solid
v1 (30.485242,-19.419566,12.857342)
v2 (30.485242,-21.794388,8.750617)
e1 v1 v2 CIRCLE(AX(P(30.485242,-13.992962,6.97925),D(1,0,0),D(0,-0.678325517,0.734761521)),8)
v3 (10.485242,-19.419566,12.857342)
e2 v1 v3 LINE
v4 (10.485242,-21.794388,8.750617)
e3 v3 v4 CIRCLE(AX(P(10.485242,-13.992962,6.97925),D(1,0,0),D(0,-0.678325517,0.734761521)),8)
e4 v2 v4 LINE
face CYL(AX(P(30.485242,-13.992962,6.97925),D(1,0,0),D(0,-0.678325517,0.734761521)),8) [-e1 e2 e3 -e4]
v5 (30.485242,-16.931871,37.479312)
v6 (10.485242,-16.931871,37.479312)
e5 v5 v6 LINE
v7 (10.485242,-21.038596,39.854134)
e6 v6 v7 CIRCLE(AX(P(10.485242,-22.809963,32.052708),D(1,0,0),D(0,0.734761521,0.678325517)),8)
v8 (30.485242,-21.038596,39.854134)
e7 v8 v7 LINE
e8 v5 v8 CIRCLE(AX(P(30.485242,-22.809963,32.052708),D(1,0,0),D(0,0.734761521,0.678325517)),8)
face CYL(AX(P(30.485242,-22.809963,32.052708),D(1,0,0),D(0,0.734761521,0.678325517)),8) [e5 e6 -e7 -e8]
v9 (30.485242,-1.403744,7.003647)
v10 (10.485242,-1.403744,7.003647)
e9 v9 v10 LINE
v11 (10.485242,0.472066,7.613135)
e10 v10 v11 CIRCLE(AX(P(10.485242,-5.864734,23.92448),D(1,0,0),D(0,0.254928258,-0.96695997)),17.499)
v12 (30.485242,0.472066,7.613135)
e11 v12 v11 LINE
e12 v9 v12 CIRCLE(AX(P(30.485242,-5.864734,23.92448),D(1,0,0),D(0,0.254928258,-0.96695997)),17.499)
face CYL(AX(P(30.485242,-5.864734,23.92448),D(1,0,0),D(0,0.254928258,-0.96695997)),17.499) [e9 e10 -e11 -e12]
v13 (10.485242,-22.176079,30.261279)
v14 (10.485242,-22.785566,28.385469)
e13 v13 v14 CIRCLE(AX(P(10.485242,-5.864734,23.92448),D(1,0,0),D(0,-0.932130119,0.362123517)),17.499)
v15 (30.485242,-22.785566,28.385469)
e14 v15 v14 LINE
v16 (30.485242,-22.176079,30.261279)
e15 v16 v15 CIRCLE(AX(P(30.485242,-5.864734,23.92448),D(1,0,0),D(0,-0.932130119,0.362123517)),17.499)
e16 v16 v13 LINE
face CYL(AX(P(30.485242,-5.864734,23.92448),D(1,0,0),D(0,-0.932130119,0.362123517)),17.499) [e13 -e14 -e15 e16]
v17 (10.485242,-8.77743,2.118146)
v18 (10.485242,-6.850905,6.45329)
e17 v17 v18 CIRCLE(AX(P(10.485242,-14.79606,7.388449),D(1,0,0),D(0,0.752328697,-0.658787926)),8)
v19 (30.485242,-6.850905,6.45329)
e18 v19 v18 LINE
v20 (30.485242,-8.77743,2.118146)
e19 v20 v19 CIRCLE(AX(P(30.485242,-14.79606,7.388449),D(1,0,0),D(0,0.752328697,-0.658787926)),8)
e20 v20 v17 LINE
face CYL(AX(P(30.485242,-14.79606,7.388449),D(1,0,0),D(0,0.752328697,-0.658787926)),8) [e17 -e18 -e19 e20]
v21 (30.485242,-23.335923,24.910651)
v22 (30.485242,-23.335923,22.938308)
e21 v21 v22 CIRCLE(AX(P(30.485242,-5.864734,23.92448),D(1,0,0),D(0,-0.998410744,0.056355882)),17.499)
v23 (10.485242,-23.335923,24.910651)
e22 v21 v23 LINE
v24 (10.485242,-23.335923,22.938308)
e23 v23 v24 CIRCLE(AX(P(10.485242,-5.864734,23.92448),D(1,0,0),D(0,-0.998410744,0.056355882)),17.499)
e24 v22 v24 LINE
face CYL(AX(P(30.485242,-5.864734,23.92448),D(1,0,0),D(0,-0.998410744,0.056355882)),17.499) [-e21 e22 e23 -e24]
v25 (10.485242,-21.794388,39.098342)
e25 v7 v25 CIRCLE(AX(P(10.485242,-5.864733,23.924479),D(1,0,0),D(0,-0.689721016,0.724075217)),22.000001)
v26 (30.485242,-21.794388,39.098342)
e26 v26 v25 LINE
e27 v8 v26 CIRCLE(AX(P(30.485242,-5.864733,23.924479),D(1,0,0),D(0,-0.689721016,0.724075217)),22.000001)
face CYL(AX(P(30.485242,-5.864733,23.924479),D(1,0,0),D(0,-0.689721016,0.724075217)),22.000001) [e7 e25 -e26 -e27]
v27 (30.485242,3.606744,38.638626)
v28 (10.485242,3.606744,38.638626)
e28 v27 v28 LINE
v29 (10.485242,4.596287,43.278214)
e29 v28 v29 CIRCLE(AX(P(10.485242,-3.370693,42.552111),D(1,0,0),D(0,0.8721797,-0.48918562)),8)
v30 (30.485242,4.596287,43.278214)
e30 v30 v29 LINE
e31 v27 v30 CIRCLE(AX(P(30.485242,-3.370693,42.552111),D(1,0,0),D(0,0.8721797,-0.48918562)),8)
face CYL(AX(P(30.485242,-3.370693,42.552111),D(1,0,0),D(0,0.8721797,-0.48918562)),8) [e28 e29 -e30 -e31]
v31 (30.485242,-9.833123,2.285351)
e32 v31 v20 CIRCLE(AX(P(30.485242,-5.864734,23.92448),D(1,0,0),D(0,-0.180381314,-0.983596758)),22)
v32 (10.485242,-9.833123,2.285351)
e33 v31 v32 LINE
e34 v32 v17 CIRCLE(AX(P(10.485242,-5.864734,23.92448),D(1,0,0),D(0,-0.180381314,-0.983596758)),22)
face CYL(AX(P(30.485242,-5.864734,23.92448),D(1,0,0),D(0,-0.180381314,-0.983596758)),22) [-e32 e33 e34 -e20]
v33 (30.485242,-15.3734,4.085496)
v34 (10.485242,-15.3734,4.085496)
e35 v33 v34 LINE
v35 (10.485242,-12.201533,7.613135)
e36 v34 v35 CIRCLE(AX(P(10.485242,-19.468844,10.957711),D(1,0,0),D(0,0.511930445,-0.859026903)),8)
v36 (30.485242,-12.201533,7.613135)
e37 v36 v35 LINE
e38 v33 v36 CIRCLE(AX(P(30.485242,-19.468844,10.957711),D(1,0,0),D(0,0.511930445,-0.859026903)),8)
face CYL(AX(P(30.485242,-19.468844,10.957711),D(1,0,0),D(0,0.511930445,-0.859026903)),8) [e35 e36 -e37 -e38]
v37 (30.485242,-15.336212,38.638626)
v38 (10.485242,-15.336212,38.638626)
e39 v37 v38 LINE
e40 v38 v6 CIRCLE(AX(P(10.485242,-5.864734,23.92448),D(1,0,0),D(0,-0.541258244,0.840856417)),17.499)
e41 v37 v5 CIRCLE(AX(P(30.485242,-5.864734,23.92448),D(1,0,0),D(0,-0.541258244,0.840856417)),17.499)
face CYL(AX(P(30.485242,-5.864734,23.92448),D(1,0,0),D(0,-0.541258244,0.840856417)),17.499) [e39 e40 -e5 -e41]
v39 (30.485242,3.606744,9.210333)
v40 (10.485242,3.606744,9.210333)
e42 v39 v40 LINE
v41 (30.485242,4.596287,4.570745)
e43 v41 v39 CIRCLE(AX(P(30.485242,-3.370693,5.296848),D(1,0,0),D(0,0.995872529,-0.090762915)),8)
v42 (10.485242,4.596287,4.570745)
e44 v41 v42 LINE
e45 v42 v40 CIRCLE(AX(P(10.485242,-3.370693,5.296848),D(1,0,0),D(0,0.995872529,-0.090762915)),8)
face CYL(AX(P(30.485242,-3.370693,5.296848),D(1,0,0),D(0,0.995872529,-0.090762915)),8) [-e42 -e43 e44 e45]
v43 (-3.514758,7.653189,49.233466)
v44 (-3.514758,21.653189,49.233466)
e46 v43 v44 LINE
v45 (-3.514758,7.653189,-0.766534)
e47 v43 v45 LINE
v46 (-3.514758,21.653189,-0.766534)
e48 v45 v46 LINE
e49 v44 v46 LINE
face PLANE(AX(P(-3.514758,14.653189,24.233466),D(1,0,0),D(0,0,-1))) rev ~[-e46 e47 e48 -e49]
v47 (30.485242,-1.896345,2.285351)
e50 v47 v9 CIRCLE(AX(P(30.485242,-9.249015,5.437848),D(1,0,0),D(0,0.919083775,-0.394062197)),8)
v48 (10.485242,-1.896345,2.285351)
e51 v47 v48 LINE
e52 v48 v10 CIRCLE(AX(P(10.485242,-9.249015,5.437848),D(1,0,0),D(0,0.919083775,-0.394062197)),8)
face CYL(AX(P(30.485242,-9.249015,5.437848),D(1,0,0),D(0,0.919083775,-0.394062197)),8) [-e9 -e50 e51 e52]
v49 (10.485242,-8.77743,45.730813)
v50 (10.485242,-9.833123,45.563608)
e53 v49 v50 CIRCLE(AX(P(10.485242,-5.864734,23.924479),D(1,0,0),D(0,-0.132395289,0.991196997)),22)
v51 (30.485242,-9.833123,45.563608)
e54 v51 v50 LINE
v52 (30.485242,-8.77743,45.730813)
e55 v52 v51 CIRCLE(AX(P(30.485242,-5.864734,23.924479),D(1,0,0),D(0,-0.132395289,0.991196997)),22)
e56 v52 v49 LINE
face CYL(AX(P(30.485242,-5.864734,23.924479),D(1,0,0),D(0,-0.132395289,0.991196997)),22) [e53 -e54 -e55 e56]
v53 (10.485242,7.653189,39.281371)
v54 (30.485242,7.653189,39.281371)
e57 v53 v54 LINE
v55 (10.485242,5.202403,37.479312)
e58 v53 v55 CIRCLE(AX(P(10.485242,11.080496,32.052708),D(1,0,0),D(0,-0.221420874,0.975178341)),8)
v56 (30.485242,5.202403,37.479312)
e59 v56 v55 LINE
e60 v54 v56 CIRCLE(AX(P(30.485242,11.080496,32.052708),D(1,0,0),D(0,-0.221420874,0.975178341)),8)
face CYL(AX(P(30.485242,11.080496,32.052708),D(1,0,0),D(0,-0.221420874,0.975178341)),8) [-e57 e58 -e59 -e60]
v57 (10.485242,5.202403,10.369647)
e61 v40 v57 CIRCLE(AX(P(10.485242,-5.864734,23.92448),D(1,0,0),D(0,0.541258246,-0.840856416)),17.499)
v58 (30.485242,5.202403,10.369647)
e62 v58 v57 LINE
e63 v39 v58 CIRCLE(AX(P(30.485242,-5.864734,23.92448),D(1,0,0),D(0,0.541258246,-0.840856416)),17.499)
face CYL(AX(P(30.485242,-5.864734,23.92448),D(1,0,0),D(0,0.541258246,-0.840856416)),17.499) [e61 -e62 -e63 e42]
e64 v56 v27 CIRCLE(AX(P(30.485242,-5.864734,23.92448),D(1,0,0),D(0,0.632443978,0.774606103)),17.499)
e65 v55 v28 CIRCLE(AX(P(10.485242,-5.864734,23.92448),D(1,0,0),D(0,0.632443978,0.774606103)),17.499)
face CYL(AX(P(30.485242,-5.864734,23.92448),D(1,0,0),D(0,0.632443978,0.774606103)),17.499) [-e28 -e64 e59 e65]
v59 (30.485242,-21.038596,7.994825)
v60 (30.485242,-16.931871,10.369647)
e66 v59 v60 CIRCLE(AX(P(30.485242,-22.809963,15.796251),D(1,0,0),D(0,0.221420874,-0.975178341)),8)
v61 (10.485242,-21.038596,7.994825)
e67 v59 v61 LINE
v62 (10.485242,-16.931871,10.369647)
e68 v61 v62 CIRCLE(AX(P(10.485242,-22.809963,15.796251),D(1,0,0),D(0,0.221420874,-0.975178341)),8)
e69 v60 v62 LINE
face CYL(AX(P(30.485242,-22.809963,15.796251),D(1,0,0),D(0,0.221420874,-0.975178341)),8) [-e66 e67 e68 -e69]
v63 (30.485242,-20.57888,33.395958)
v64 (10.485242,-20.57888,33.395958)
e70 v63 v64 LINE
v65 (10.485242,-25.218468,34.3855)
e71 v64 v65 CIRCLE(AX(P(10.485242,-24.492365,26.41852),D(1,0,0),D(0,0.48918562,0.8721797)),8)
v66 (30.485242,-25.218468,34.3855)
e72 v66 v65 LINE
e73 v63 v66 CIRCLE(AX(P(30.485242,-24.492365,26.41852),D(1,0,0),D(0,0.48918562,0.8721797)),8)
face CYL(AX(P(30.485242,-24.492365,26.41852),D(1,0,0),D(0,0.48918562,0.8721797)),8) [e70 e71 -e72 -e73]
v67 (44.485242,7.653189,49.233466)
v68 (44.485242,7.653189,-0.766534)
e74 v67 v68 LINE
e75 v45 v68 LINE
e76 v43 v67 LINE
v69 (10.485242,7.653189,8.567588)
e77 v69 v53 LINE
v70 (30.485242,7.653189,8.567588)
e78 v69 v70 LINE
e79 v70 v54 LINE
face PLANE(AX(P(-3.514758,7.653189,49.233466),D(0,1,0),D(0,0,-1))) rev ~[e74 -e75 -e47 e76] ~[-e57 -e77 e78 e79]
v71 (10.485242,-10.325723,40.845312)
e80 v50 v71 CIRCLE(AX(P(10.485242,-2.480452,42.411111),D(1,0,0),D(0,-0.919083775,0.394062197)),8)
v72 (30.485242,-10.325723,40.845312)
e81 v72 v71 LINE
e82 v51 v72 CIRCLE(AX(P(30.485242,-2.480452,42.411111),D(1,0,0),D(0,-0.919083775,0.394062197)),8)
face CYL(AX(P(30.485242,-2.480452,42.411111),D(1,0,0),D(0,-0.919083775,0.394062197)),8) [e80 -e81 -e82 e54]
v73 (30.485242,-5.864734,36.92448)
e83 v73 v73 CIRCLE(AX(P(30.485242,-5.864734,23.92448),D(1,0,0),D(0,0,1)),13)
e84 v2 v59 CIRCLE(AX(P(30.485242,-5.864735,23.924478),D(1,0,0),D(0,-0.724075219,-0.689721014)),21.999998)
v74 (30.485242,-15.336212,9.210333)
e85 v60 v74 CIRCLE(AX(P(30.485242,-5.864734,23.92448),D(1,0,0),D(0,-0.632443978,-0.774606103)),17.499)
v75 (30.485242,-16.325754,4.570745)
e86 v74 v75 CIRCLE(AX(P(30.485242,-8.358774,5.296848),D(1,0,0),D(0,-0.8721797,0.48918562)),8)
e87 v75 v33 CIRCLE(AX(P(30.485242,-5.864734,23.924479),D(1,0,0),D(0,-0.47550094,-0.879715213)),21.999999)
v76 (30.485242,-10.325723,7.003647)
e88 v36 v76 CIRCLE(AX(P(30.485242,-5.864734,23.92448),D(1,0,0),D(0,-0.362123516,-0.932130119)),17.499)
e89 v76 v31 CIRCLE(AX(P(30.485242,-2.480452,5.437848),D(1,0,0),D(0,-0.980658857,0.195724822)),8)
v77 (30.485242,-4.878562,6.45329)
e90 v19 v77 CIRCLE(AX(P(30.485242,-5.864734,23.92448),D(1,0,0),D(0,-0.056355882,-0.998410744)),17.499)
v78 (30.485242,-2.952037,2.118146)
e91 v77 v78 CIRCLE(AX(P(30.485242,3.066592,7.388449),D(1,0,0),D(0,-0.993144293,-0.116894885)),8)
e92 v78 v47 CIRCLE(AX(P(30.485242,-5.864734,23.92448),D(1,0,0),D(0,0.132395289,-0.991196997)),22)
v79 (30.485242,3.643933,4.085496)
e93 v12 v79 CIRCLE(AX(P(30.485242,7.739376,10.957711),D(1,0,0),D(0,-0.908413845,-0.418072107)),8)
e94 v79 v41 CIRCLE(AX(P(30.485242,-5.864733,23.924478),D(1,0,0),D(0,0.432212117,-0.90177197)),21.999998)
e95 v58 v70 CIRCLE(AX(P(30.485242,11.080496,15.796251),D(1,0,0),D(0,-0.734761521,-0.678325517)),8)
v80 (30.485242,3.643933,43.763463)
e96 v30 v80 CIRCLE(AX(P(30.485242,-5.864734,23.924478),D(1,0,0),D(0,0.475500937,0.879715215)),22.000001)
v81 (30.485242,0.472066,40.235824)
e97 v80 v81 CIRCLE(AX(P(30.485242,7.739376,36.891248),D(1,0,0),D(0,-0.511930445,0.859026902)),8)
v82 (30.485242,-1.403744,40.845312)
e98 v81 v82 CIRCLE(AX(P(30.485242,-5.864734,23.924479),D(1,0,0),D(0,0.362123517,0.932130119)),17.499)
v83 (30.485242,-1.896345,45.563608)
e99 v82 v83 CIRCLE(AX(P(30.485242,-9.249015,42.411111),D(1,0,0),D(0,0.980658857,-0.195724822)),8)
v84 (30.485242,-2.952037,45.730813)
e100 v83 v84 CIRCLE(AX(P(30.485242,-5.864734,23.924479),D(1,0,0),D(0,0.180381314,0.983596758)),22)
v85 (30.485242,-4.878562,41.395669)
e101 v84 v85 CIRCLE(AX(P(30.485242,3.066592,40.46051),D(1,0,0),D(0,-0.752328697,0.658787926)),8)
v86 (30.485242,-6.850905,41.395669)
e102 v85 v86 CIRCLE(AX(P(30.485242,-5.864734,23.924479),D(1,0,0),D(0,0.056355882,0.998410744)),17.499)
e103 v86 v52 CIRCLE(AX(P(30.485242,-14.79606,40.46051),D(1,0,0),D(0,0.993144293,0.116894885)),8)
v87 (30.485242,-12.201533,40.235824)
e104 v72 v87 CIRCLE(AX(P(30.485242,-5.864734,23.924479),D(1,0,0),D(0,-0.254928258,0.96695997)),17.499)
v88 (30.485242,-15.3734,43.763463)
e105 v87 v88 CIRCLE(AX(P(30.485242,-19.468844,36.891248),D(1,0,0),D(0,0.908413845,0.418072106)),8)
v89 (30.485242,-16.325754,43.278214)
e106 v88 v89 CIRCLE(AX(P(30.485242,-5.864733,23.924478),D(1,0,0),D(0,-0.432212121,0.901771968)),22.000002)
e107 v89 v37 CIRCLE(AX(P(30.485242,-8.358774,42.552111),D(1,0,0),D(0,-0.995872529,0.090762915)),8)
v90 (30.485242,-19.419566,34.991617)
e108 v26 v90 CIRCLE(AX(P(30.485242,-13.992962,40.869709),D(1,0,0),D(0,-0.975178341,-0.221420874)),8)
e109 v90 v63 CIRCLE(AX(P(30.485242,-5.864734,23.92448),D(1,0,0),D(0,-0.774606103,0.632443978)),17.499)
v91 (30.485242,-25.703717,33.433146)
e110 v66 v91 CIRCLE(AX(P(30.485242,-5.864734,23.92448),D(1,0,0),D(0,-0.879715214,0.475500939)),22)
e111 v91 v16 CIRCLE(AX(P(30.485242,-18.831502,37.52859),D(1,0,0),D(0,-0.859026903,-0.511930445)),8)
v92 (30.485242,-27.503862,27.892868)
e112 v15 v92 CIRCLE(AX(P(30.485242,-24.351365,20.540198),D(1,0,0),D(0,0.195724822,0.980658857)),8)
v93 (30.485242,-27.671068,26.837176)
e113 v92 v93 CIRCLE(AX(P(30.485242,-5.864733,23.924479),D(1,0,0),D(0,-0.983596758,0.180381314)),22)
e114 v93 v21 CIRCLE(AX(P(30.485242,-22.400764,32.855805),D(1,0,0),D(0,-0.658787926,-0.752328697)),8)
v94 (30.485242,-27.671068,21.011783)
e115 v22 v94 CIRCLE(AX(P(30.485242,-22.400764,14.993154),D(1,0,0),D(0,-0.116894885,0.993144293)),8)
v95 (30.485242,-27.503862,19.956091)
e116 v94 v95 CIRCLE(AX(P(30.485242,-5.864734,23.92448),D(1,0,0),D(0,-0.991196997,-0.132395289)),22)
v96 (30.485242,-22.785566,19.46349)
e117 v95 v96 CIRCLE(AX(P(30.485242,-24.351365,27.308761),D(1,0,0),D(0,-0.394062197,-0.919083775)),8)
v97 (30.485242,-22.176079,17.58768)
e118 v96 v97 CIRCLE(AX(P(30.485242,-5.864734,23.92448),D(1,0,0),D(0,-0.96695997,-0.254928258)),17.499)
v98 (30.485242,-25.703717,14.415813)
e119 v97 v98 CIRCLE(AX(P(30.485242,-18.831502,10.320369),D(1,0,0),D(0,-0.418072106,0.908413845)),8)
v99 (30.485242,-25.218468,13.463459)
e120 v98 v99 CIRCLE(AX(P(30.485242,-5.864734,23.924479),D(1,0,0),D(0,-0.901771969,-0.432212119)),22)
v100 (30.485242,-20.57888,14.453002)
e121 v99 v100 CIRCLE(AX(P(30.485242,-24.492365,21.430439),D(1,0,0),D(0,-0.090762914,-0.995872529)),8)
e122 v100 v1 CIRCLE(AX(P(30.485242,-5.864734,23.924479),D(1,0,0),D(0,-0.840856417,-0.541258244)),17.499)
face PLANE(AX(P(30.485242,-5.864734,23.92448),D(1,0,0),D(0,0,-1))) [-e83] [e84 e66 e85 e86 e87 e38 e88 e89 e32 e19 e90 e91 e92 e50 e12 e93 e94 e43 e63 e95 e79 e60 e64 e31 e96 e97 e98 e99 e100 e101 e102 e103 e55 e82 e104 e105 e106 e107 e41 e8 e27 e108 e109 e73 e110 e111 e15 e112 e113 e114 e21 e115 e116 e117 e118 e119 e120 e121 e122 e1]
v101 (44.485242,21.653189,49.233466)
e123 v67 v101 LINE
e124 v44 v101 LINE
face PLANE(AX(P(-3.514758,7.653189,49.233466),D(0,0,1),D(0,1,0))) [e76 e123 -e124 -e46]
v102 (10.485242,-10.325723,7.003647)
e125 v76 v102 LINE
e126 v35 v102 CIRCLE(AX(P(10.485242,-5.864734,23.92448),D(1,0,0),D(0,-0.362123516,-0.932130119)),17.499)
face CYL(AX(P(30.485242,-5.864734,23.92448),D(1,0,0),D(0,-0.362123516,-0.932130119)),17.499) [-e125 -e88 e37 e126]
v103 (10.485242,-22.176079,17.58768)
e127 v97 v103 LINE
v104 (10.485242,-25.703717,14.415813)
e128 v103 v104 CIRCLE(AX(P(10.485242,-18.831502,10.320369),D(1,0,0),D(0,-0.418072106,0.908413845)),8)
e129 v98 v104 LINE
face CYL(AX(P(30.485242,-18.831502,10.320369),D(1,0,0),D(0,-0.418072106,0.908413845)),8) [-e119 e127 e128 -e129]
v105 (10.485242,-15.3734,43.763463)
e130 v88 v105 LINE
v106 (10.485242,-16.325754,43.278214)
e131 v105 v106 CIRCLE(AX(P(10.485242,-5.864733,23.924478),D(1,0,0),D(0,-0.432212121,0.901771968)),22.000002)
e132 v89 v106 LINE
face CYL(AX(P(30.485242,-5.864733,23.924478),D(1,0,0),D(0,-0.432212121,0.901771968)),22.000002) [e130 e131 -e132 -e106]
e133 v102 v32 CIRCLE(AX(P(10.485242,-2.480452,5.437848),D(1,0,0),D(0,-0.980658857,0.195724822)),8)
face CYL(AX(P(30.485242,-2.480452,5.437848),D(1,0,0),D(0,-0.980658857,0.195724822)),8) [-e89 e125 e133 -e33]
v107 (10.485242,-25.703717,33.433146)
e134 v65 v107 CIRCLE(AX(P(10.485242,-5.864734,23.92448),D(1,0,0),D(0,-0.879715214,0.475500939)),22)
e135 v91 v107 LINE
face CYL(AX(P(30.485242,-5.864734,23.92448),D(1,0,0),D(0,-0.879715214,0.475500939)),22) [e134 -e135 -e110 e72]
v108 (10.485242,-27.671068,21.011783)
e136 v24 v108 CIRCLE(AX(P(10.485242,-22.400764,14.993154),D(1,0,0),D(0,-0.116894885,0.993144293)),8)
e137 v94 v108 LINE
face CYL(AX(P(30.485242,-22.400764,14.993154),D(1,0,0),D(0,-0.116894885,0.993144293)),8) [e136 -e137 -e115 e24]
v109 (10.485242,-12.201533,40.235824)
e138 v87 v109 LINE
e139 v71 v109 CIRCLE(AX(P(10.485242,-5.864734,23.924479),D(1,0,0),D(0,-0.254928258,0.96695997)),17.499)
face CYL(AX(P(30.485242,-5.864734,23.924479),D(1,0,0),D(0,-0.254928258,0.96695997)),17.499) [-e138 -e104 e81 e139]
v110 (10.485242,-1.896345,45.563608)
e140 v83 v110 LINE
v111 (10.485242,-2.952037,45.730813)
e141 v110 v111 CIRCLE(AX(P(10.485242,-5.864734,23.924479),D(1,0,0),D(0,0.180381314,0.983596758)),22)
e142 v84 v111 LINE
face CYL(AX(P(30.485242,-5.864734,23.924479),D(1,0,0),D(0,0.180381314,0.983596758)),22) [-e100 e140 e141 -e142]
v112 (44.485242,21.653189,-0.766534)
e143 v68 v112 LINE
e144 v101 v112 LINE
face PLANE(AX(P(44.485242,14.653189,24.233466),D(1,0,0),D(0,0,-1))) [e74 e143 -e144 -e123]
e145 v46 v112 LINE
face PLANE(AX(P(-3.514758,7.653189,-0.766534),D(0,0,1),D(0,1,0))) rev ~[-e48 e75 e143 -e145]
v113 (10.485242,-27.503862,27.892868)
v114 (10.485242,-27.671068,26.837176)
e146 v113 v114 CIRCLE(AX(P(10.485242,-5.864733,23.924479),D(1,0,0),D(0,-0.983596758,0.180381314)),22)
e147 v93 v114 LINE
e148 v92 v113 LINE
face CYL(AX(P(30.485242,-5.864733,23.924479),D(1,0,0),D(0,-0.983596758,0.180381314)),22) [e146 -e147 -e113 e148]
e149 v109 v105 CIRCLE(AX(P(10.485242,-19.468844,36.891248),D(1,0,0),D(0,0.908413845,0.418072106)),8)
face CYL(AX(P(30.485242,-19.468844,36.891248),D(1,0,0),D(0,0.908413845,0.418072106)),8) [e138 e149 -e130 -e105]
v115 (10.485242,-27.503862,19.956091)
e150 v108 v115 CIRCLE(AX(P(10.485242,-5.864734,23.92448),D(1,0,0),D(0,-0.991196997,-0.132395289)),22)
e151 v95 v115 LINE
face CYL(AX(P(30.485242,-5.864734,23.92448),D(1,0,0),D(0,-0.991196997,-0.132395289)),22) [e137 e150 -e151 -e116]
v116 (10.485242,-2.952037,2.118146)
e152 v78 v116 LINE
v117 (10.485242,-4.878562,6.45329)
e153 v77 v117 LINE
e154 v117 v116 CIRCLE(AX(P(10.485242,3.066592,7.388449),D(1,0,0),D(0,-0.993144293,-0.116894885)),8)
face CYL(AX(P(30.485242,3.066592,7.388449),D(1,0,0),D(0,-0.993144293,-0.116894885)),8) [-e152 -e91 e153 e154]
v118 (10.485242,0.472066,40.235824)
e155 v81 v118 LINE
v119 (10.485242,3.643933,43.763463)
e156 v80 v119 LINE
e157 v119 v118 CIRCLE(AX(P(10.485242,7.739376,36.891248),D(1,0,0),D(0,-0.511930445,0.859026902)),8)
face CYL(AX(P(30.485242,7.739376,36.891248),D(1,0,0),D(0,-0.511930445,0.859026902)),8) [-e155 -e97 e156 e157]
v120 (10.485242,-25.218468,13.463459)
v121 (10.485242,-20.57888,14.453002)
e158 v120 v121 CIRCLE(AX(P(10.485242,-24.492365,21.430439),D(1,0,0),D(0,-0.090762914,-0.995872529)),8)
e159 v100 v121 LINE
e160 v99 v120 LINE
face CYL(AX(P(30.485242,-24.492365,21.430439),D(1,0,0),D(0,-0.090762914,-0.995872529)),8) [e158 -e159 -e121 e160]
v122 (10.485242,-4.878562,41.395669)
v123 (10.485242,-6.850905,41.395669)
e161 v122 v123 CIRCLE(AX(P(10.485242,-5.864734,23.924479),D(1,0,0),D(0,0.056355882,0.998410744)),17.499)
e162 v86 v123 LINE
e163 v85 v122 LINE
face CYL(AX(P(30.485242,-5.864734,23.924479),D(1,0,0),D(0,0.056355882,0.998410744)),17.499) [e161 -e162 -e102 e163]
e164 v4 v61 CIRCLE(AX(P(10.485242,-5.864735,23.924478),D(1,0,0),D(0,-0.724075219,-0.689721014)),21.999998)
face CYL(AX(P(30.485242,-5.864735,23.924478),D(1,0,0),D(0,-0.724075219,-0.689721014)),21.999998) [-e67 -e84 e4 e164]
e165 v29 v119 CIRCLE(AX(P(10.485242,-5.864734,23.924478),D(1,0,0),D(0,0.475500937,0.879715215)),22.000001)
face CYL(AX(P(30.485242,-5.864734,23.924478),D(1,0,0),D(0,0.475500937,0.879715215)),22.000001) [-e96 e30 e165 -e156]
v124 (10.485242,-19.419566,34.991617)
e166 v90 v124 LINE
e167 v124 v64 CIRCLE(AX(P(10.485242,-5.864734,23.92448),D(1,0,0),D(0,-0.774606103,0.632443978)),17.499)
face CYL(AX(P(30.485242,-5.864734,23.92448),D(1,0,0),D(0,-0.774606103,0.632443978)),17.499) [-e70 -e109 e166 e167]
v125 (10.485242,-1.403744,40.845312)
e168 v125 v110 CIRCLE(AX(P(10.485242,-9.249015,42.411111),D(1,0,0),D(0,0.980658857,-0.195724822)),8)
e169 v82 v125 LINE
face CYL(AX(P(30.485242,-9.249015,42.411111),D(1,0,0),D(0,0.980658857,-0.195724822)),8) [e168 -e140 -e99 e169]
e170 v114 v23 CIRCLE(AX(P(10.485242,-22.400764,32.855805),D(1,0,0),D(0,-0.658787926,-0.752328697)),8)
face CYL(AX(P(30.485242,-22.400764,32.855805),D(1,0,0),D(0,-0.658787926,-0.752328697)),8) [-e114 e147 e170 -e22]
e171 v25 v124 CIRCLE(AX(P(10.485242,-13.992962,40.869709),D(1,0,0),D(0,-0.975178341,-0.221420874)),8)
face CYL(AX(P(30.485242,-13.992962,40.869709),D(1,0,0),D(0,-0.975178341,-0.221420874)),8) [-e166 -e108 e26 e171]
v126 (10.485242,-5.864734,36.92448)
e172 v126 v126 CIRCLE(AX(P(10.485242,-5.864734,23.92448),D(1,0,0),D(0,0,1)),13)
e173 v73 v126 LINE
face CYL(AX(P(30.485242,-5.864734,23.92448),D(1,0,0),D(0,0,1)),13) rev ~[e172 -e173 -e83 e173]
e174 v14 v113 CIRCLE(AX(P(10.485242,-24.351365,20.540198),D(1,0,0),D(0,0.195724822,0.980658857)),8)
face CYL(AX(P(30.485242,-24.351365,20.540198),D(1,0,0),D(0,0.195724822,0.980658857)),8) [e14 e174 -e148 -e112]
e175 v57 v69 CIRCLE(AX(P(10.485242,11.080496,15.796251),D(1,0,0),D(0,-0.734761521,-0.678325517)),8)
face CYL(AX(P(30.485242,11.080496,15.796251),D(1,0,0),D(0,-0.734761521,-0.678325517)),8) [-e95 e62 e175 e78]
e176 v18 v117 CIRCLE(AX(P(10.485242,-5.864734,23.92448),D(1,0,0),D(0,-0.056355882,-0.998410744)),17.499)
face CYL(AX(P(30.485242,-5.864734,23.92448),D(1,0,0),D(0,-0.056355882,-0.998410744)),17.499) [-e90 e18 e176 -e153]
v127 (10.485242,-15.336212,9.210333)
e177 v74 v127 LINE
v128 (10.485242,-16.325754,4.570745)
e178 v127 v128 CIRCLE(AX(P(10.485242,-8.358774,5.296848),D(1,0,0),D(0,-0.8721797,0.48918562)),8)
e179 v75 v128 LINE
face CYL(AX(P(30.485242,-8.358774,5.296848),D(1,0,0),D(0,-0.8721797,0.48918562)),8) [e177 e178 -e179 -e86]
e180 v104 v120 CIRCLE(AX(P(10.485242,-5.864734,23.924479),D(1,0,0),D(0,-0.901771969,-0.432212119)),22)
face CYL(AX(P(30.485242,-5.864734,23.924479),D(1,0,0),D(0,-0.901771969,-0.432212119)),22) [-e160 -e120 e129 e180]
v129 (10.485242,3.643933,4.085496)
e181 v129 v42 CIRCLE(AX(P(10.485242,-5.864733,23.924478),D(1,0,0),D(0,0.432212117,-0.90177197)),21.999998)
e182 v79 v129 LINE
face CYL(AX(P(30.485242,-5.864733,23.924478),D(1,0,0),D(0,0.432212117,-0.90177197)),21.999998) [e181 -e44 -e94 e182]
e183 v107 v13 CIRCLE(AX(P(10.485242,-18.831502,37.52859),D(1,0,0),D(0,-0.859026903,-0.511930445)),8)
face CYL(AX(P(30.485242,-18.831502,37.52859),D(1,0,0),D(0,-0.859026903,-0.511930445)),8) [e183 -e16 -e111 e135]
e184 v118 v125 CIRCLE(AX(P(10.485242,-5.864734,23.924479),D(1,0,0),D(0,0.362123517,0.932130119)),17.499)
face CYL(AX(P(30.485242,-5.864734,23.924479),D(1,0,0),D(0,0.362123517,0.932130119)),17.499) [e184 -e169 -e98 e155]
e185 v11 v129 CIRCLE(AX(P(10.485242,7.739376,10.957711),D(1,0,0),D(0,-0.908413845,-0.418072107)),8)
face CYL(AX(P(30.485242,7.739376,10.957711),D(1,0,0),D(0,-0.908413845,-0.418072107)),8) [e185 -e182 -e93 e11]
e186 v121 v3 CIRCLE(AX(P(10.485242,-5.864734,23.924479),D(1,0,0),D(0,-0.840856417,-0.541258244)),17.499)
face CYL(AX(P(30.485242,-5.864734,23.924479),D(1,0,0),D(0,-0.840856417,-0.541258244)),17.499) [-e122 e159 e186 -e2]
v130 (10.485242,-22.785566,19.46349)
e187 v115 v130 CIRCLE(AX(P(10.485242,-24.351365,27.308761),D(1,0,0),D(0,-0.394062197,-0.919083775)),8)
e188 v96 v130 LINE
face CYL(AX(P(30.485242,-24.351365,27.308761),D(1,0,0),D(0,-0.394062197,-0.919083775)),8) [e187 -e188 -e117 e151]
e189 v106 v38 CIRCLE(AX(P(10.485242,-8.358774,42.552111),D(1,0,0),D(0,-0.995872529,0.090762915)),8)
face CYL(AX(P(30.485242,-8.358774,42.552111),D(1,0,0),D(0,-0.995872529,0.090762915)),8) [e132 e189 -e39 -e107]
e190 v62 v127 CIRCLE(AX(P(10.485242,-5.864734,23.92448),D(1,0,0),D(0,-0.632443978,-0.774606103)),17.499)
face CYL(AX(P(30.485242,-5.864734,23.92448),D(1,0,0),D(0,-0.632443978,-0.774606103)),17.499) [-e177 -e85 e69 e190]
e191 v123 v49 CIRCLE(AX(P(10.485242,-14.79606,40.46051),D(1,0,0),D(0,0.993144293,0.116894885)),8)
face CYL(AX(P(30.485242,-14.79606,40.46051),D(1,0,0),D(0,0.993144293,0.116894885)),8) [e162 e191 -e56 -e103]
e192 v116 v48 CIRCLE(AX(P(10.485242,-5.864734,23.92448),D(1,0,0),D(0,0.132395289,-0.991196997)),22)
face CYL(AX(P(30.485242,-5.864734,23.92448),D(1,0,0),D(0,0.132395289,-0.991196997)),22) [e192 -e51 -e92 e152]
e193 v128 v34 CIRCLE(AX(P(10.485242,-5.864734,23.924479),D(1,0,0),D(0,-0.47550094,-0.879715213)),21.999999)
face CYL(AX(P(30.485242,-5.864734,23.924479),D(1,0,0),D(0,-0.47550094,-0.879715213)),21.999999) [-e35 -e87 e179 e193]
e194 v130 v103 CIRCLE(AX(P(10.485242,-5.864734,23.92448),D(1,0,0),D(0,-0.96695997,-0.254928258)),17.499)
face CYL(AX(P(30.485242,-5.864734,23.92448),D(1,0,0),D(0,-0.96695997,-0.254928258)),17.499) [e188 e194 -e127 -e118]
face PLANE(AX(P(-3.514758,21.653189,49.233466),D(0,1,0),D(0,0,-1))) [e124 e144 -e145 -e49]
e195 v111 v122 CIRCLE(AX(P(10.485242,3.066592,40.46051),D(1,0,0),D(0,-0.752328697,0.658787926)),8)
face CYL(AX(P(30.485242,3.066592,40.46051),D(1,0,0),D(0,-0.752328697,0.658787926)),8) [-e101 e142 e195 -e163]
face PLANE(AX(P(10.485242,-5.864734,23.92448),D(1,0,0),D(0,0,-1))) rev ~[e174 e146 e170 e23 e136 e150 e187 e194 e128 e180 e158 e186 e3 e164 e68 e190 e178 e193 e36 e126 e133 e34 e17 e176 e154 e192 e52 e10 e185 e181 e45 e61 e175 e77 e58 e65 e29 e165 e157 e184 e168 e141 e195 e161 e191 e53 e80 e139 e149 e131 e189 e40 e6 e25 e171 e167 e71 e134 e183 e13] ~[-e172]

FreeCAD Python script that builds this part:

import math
import FreeCAD as App
import Part
import Sketcher

V = App.Vector

doc = App.newDocument("Part")
body = doc.addObject("PartDesign::Body", "Body")

sketch1 = body.newObject("Sketcher::SketchObject", "Sketch")
sketch1.AttachmentSupport = (doc.getObject("YZ_Plane"), [""])
sketch1.MapMode = "FlatFace"
sketch1.AttachmentOffset = App.Placement(V(0, 0, 30.485242), App.Rotation())
sketch1.addGeometry([
    Part.ArcOfCircle(Part.Circle(V(3.1, 40.5, 0), V(0, 0, 1), 8), math.radians(139), math.radians(173)),
    Part.ArcOfCircle(Part.Circle(V(-5.9, 23.9, 0), V(0, 0, 1), 17.5), math.radians(86.77), math.radians(93.23)),
    Part.ArcOfCircle(Part.Circle(V(-14.8, 40.5, 0), V(0, 0, 1), 8), math.radians(7), math.radians(41)),
    Part.ArcOfCircle(Part.Circle(V(-5.9, 23.9, 0), V(0, 0, 1), 22), math.radians(97.61), math.radians(100.39)),
    Part.ArcOfCircle(Part.Circle(V(-2.5, 42.4, 0), V(0, 0, 1), 8), math.radians(157), math.radians(191)),
    Part.ArcOfCircle(Part.Circle(V(-5.9, 23.9, 0), V(0, 0, 1), 17.5), math.radians(104.77), math.radians(111.23)),
    Part.ArcOfCircle(Part.Circle(V(-19.5, 36.9, 0), V(0, 0, 1), 8), math.radians(25), math.radians(59)),
    Part.ArcOfCircle(Part.Circle(V(-5.9, 23.9, 0), V(0, 0, 1), 22), math.radians(115.61), math.radians(118.39)),
    Part.ArcOfCircle(Part.Circle(V(-8.4, 42.6, 0), V(0, 0, 1), 8), math.radians(175), math.radians(209)),
    Part.ArcOfCircle(Part.Circle(V(-5.9, 23.9, 0), V(0, 0, 1), 17.5), math.radians(122.77), math.radians(129.23)),
    Part.ArcOfCircle(Part.Circle(V(-22.8, 32.1, 0), V(0, 0, 1), 8), math.radians(43), math.radians(77)),
    Part.ArcOfCircle(Part.Circle(V(-5.9, 23.9, 0), V(0, 0, 1), 22), math.radians(133.61), math.radians(136.39)),
    Part.ArcOfCircle(Part.Circle(V(-14, 40.9, 0), V(0, 0, 1), 8), math.radians(-167), math.radians(-133)),
    Part.ArcOfCircle(Part.Circle(V(-5.9, 23.9, 0), V(0, 0, 1), 17.5), math.radians(140.77), math.radians(147.23)),
    Part.ArcOfCircle(Part.Circle(V(-24.5, 26.4, 0), V(0, 0, 1), 8), math.radians(61), math.radians(95)),
    Part.ArcOfCircle(Part.Circle(V(-5.9, 23.9, 0), V(0, 0, 1), 22), math.radians(151.61), math.radians(154.39)),
    Part.ArcOfCircle(Part.Circle(V(-18.8, 37.5, 0), V(0, 0, 1), 8), math.radians(-149), math.radians(-115)),
    Part.ArcOfCircle(Part.Circle(V(-5.9, 23.9, 0), V(0, 0, 1), 17.5), math.radians(158.77), math.radians(165.23)),
    Part.ArcOfCircle(Part.Circle(V(-24.4, 20.5, 0), V(0, 0, 1), 8), math.radians(79), math.radians(113)),
    Part.ArcOfCircle(Part.Circle(V(-5.9, 23.9, 0), V(0, 0, 1), 22), math.radians(169.61), math.radians(172.39)),
    Part.ArcOfCircle(Part.Circle(V(-22.4, 32.9, 0), V(0, 0, 1), 8), math.radians(-131), math.radians(-97)),
    Part.ArcOfCircle(Part.Circle(V(-5.9, 23.9, 0), V(0, 0, 1), 17.5), math.radians(176.77), math.radians(183.23)),
    Part.ArcOfCircle(Part.Circle(V(-22.4, 15, 0), V(0, 0, 1), 8), math.radians(97), math.radians(131)),
    Part.ArcOfCircle(Part.Circle(V(-5.9, 23.9, 0), V(0, 0, 1), 22), math.radians(-172.39), math.radians(-169.61)),
    Part.ArcOfCircle(Part.Circle(V(-24.4, 27.3, 0), V(0, 0, 1), 8), math.radians(-113), math.radians(-79)),
    Part.ArcOfCircle(Part.Circle(V(-5.9, 23.9, 0), V(0, 0, 1), 17.5), math.radians(-165.23), math.radians(-158.77)),
    Part.ArcOfCircle(Part.Circle(V(-18.8, 10.3, 0), V(0, 0, 1), 8), math.radians(115), math.radians(149)),
    Part.ArcOfCircle(Part.Circle(V(-5.9, 23.9, 0), V(0, 0, 1), 22), math.radians(-154.39), math.radians(-151.61)),
    Part.ArcOfCircle(Part.Circle(V(-24.5, 21.4, 0), V(0, 0, 1), 8), math.radians(-95), math.radians(-61)),
    Part.ArcOfCircle(Part.Circle(V(-5.9, 23.9, 0), V(0, 0, 1), 17.5), math.radians(-147.23), math.radians(-140.77)),
    Part.ArcOfCircle(Part.Circle(V(-14, 7, 0), V(0, 0, 1), 8), math.radians(133), math.radians(167)),
    Part.ArcOfCircle(Part.Circle(V(-5.9, 23.9, 0), V(0, 0, 1), 22), math.radians(-136.39), math.radians(-133.61)),
    Part.ArcOfCircle(Part.Circle(V(-22.8, 15.8, 0), V(0, 0, 1), 8), math.radians(-77), math.radians(-43)),
    Part.ArcOfCircle(Part.Circle(V(-5.9, 23.9, 0), V(0, 0, 1), 17.5), math.radians(-129.23), math.radians(-122.77)),
    Part.ArcOfCircle(Part.Circle(V(-8.4, 5.3, 0), V(0, 0, 1), 8), math.radians(151), math.radians(185)),
    Part.ArcOfCircle(Part.Circle(V(-5.9, 23.9, 0), V(0, 0, 1), 22), math.radians(-118.39), math.radians(-115.61)),
    Part.ArcOfCircle(Part.Circle(V(-19.5, 11, 0), V(0, 0, 1), 8), math.radians(-59), math.radians(-25)),
    Part.ArcOfCircle(Part.Circle(V(-5.9, 23.9, 0), V(0, 0, 1), 17.5), math.radians(-111.23), math.radians(-104.77)),
    Part.ArcOfCircle(Part.Circle(V(-2.5, 5.4, 0), V(0, 0, 1), 8), math.radians(169), math.radians(203)),
    Part.ArcOfCircle(Part.Circle(V(-5.9, 23.9, 0), V(0, 0, 1), 22), math.radians(-100.39), math.radians(-97.61)),
    Part.ArcOfCircle(Part.Circle(V(-14.8, 7.4, 0), V(0, 0, 1), 8), math.radians(-41), math.radians(-7)),
    Part.ArcOfCircle(Part.Circle(V(-5.9, 23.9, 0), V(0, 0, 1), 17.5), math.radians(-93.23), math.radians(-86.77)),
    Part.ArcOfCircle(Part.Circle(V(3.1, 7.4, 0), V(0, 0, 1), 8), math.radians(-173), math.radians(-139)),
    Part.ArcOfCircle(Part.Circle(V(-5.9, 23.9, 0), V(0, 0, 1), 22), math.radians(-82.39), math.radians(-79.61)),
    Part.ArcOfCircle(Part.Circle(V(-9.2, 5.4, 0), V(0, 0, 1), 8), math.radians(-23), math.radians(11)),
    Part.ArcOfCircle(Part.Circle(V(-5.9, 23.9, 0), V(0, 0, 1), 17.5), math.radians(-75.23), math.radians(-68.77)),
    Part.ArcOfCircle(Part.Circle(V(7.7, 11, 0), V(0, 0, 1), 8), math.radians(-155), math.radians(-121)),
    Part.ArcOfCircle(Part.Circle(V(-5.9, 23.9, 0), V(0, 0, 1), 22), math.radians(-64.39), math.radians(-61.61)),
    Part.ArcOfCircle(Part.Circle(V(-3.4, 5.3, 0), V(0, 0, 1), 8), math.radians(-5), math.radians(29)),
    Part.ArcOfCircle(Part.Circle(V(-5.9, 23.9, 0), V(0, 0, 1), 17.5), math.radians(-57.23), math.radians(-50.77)),
    Part.ArcOfCircle(Part.Circle(V(11.1, 15.8, 0), V(0, 0, 1), 8), math.radians(-137), math.radians(-103)),
    Part.ArcOfCircle(Part.Circle(V(-5.9, 23.9, 0), V(0, 0, 1), 22), math.radians(-46.39), math.radians(-43.61)),
    Part.ArcOfCircle(Part.Circle(V(2.3, 7, 0), V(0, 0, 1), 8), math.radians(13), math.radians(47)),
    Part.ArcOfCircle(Part.Circle(V(-5.9, 23.9, 0), V(0, 0, 1), 17.5), math.radians(-39.23), math.radians(-32.77)),
    Part.ArcOfCircle(Part.Circle(V(12.8, 21.4, 0), V(0, 0, 1), 8), math.radians(-119), math.radians(-85)),
    Part.ArcOfCircle(Part.Circle(V(-5.9, 23.9, 0), V(0, 0, 1), 22), math.radians(-28.39), math.radians(-25.61)),
    Part.ArcOfCircle(Part.Circle(V(7.1, 10.3, 0), V(0, 0, 1), 8), math.radians(31), math.radians(65)),
    Part.ArcOfCircle(Part.Circle(V(-5.9, 23.9, 0), V(0, 0, 1), 17.5), math.radians(-21.23), math.radians(-14.77)),
    Part.ArcOfCircle(Part.Circle(V(12.6, 27.3, 0), V(0, 0, 1), 8), math.radians(-101), math.radians(-67)),
    Part.ArcOfCircle(Part.Circle(V(-5.9, 23.9, 0), V(0, 0, 1), 22), math.radians(-10.39), math.radians(-7.61)),
    Part.ArcOfCircle(Part.Circle(V(10.7, 15, 0), V(0, 0, 1), 8), math.radians(49), math.radians(83)),
    Part.ArcOfCircle(Part.Circle(V(-5.9, 23.9, 0), V(0, 0, 1), 17.5), math.radians(-3.23), math.radians(3.23)),
    Part.ArcOfCircle(Part.Circle(V(10.7, 32.9, 0), V(0, 0, 1), 8), math.radians(-83), math.radians(-49)),
    Part.ArcOfCircle(Part.Circle(V(-5.9, 23.9, 0), V(0, 0, 1), 22), math.radians(7.61), math.radians(10.39)),
    Part.ArcOfCircle(Part.Circle(V(12.6, 20.5, 0), V(0, 0, 1), 8), math.radians(67), math.radians(101)),
    Part.ArcOfCircle(Part.Circle(V(-5.9, 23.9, 0), V(0, 0, 1), 17.5), math.radians(14.77), math.radians(21.23)),
    Part.ArcOfCircle(Part.Circle(V(7.1, 37.5, 0), V(0, 0, 1), 8), math.radians(-65), math.radians(-31)),
    Part.ArcOfCircle(Part.Circle(V(-5.9, 23.9, 0), V(0, 0, 1), 22), math.radians(25.61), math.radians(28.39)),
    Part.ArcOfCircle(Part.Circle(V(12.8, 26.4, 0), V(0, 0, 1), 8), math.radians(85), math.radians(119)),
    Part.ArcOfCircle(Part.Circle(V(-5.9, 23.9, 0), V(0, 0, 1), 17.5), math.radians(32.77), math.radians(39.23)),
    Part.ArcOfCircle(Part.Circle(V(2.3, 40.9, 0), V(0, 0, 1), 8), math.radians(-47), math.radians(-13)),
    Part.ArcOfCircle(Part.Circle(V(-5.9, 23.9, 0), V(0, 0, 1), 22), math.radians(43.61), math.radians(46.39)),
    Part.ArcOfCircle(Part.Circle(V(11.1, 32.1, 0), V(0, 0, 1), 8), math.radians(103), math.radians(137)),
    Part.ArcOfCircle(Part.Circle(V(-5.9, 23.9, 0), V(0, 0, 1), 17.5), math.radians(50.77), math.radians(57.23)),
    Part.ArcOfCircle(Part.Circle(V(-3.4, 42.6, 0), V(0, 0, 1), 8), math.radians(-29), math.radians(5)),
    Part.ArcOfCircle(Part.Circle(V(-5.9, 23.9, 0), V(0, 0, 1), 22), math.radians(61.61), math.radians(64.39)),
    Part.ArcOfCircle(Part.Circle(V(7.7, 36.9, 0), V(0, 0, 1), 8), math.radians(121), math.radians(155)),
    Part.ArcOfCircle(Part.Circle(V(-5.9, 23.9, 0), V(0, 0, 1), 17.5), math.radians(68.77), math.radians(75.23)),
    Part.ArcOfCircle(Part.Circle(V(-9.2, 42.4, 0), V(0, 0, 1), 8), math.radians(-11), math.radians(23)),
    Part.ArcOfCircle(Part.Circle(V(-5.9, 23.9, 0), V(0, 0, 1), 22), math.radians(79.61), math.radians(82.39)),
    Part.Circle(V(-5.9, 23.9, 0), V(0, 0, 1), 13),
], False)
sketch1.addConstraint([
    Sketcher.Constraint("Coincident", 0, 2, 1, 1),
    Sketcher.Constraint("Coincident", 1, 2, 2, 1),
    Sketcher.Constraint("Coincident", 2, 2, 3, 1),
    Sketcher.Constraint("Coincident", 3, 2, 4, 1),
    Sketcher.Constraint("Coincident", 4, 2, 5, 1),
    Sketcher.Constraint("Coincident", 5, 2, 6, 1),
    Sketcher.Constraint("Coincident", 6, 2, 7, 1),
    Sketcher.Constraint("Coincident", 7, 2, 8, 1),
    Sketcher.Constraint("Coincident", 8, 2, 9, 1),
    Sketcher.Constraint("Coincident", 9, 2, 10, 1),
    Sketcher.Constraint("Coincident", 10, 2, 11, 1),
    Sketcher.Constraint("Coincident", 11, 2, 12, 1),
    Sketcher.Constraint("Coincident", 12, 2, 13, 1),
    Sketcher.Constraint("Coincident", 13, 2, 14, 1),
    Sketcher.Constraint("Coincident", 14, 2, 15, 1),
    Sketcher.Constraint("Coincident", 15, 2, 16, 1),
    Sketcher.Constraint("Coincident", 16, 2, 17, 1),
    Sketcher.Constraint("Coincident", 17, 2, 18, 1),
    Sketcher.Constraint("Coincident", 18, 2, 19, 1),
    Sketcher.Constraint("Coincident", 19, 2, 20, 1),
    Sketcher.Constraint("Coincident", 20, 2, 21, 1),
    Sketcher.Constraint("Coincident", 21, 2, 22, 1),
    Sketcher.Constraint("Coincident", 22, 2, 23, 1),
    Sketcher.Constraint("Coincident", 23, 2, 24, 1),
    Sketcher.Constraint("Coincident", 24, 2, 25, 1),
    Sketcher.Constraint("Coincident", 25, 2, 26, 1),
    Sketcher.Constraint("Coincident", 26, 2, 27, 1),
    Sketcher.Constraint("Coincident", 27, 2, 28, 1),
    Sketcher.Constraint("Coincident", 28, 2, 29, 1),
    Sketcher.Constraint("Coincident", 29, 2, 30, 1),
    Sketcher.Constraint("Coincident", 30, 2, 31, 1),
    Sketcher.Constraint("Coincident", 31, 2, 32, 1),
    Sketcher.Constraint("Coincident", 32, 2, 33, 1),
    Sketcher.Constraint("Coincident", 33, 2, 34, 1),
    Sketcher.Constraint("Coincident", 34, 2, 35, 1),
    Sketcher.Constraint("Coincident", 35, 2, 36, 1),
    Sketcher.Constraint("Coincident", 36, 2, 37, 1),
    Sketcher.Constraint("Coincident", 37, 2, 38, 1),
    Sketcher.Constraint("Coincident", 38, 2, 39, 1),
    Sketcher.Constraint("Coincident", 39, 2, 40, 1),
    Sketcher.Constraint("Coincident", 40, 2, 41, 1),
    Sketcher.Constraint("Coincident", 41, 2, 42, 1),
    Sketcher.Constraint("Coincident", 42, 2, 43, 1),
    Sketcher.Constraint("Coincident", 43, 2, 44, 1),
    Sketcher.Constraint("Coincident", 44, 2, 45, 1),
    Sketcher.Constraint("Coincident", 45, 2, 46, 1),
    Sketcher.Constraint("Coincident", 46, 2, 47, 1),
    Sketcher.Constraint("Coincident", 47, 2, 48, 1),
    Sketcher.Constraint("Coincident", 48, 2, 49, 1),
    Sketcher.Constraint("Coincident", 49, 2, 50, 1),
    Sketcher.Constraint("Coincident", 50, 2, 51, 1),
    Sketcher.Constraint("Coincident", 51, 2, 52, 1),
    Sketcher.Constraint("Coincident", 52, 2, 53, 1),
    Sketcher.Constraint("Coincident", 53, 2, 54, 1),
    Sketcher.Constraint("Coincident", 54, 2, 55, 1),
    Sketcher.Constraint("Coincident", 55, 2, 56, 1),
    Sketcher.Constraint("Coincident", 56, 2, 57, 1),
    Sketcher.Constraint("Coincident", 57, 2, 58, 1),
    Sketcher.Constraint("Coincident", 58, 2, 59, 1),
    Sketcher.Constraint("Coincident", 59, 2, 60, 1),
    Sketcher.Constraint("Coincident", 60, 2, 61, 1),
    Sketcher.Constraint("Coincident", 61, 2, 62, 1),
    Sketcher.Constraint("Coincident", 62, 2, 63, 1),
    Sketcher.Constraint("Coincident", 63, 2, 64, 1),
    Sketcher.Constraint("Coincident", 64, 2, 65, 1),
    Sketcher.Constraint("Coincident", 65, 2, 66, 1),
    Sketcher.Constraint("Coincident", 66, 2, 67, 1),
    Sketcher.Constraint("Coincident", 67, 2, 68, 1),
    Sketcher.Constraint("Coincident", 68, 2, 69, 1),
    Sketcher.Constraint("Coincident", 69, 2, 70, 1),
    Sketcher.Constraint("Coincident", 70, 2, 71, 1),
    Sketcher.Constraint("Coincident", 71, 2, 72, 1),
    Sketcher.Constraint("Coincident", 72, 2, 73, 1),
    Sketcher.Constraint("Coincident", 73, 2, 74, 1),
    Sketcher.Constraint("Coincident", 74, 2, 75, 1),
    Sketcher.Constraint("Coincident", 75, 2, 76, 1),
    Sketcher.Constraint("Coincident", 76, 2, 77, 1),
    Sketcher.Constraint("Coincident", 77, 2, 78, 1),
    Sketcher.Constraint("Coincident", 78, 2, 79, 1),
    Sketcher.Constraint("Coincident", 79, 2, 0, 1),
    Sketcher.Constraint("Coincident", 3, 3, 1, 3),
    Sketcher.Constraint("Coincident", 5, 3, 1, 3),
    Sketcher.Constraint("Coincident", 7, 3, 1, 3),
    Sketcher.Constraint("Coincident", 9, 3, 1, 3),
    Sketcher.Constraint("Coincident", 11, 3, 1, 3),
    Sketcher.Constraint("Coincident", 13, 3, 1, 3),
    Sketcher.Constraint("Coincident", 15, 3, 1, 3),
    Sketcher.Constraint("Coincident", 17, 3, 1, 3),
    Sketcher.Constraint("Coincident", 19, 3, 1, 3),
    Sketcher.Constraint("Coincident", 21, 3, 1, 3),
    Sketcher.Constraint("Coincident", 23, 3, 1, 3),
    Sketcher.Constraint("Coincident", 25, 3, 1, 3),
    Sketcher.Constraint("Coincident", 27, 3, 1, 3),
    Sketcher.Constraint("Coincident", 29, 3, 1, 3),
    Sketcher.Constraint("Coincident", 31, 3, 1, 3),
    Sketcher.Constraint("Coincident", 33, 3, 1, 3),
    Sketcher.Constraint("Coincident", 35, 3, 1, 3),
    Sketcher.Constraint("Coincident", 37, 3, 1, 3),
    Sketcher.Constraint("Coincident", 39, 3, 1, 3),
    Sketcher.Constraint("Coincident", 41, 3, 1, 3),
    Sketcher.Constraint("Coincident", 43, 3, 1, 3),
    Sketcher.Constraint("Coincident", 45, 3, 1, 3),
    Sketcher.Constraint("Coincident", 47, 3, 1, 3),
    Sketcher.Constraint("Coincident", 49, 3, 1, 3),
    Sketcher.Constraint("Coincident", 51, 3, 1, 3),
    Sketcher.Constraint("Coincident", 53, 3, 1, 3),
    Sketcher.Constraint("Coincident", 55, 3, 1, 3),
    Sketcher.Constraint("Coincident", 57, 3, 1, 3),
    Sketcher.Constraint("Coincident", 59, 3, 1, 3),
    Sketcher.Constraint("Coincident", 61, 3, 1, 3),
    Sketcher.Constraint("Coincident", 63, 3, 1, 3),
    Sketcher.Constraint("Coincident", 65, 3, 1, 3),
    Sketcher.Constraint("Coincident", 67, 3, 1, 3),
    Sketcher.Constraint("Coincident", 69, 3, 1, 3),
    Sketcher.Constraint("Coincident", 71, 3, 1, 3),
    Sketcher.Constraint("Coincident", 73, 3, 1, 3),
    Sketcher.Constraint("Coincident", 75, 3, 1, 3),
    Sketcher.Constraint("Coincident", 77, 3, 1, 3),
    Sketcher.Constraint("Coincident", 79, 3, 1, 3),
    Sketcher.Constraint("Coincident", 80, 3, 1, 3),
    Sketcher.Constraint("Equal", 0, 2),
    Sketcher.Constraint("Equal", 2, 4),
    Sketcher.Constraint("Equal", 1, 5),
    Sketcher.Constraint("Equal", 4, 6),
    Sketcher.Constraint("Equal", 3, 7),
    Sketcher.Constraint("Equal", 6, 8),
    Sketcher.Constraint("Equal", 5, 9),
    Sketcher.Constraint("Equal", 8, 10),
    Sketcher.Constraint("Equal", 7, 11),
    Sketcher.Constraint("Equal", 10, 12),
    Sketcher.Constraint("Equal", 9, 13),
    Sketcher.Constraint("Equal", 12, 14),
    Sketcher.Constraint("Equal", 11, 15),
    Sketcher.Constraint("Equal", 14, 16),
    Sketcher.Constraint("Equal", 13, 17),
    Sketcher.Constraint("Equal", 16, 18),
    Sketcher.Constraint("Equal", 15, 19),
    Sketcher.Constraint("Equal", 18, 20),
    Sketcher.Constraint("Equal", 17, 21),
    Sketcher.Constraint("Equal", 20, 22),
    Sketcher.Constraint("Equal", 19, 23),
    Sketcher.Constraint("Equal", 22, 24),
    Sketcher.Constraint("Equal", 21, 25),
    Sketcher.Constraint("Equal", 24, 26),
    Sketcher.Constraint("Equal", 23, 27),
    Sketcher.Constraint("Equal", 26, 28),
    Sketcher.Constraint("Equal", 25, 29),
    Sketcher.Constraint("Equal", 28, 30),
    Sketcher.Constraint("Equal", 27, 31),
    Sketcher.Constraint("Equal", 30, 32),
    Sketcher.Constraint("Equal", 29, 33),
    Sketcher.Constraint("Equal", 32, 34),
    Sketcher.Constraint("Equal", 31, 35),
    Sketcher.Constraint("Equal", 34, 36),
    Sketcher.Constraint("Equal", 33, 37),
    Sketcher.Constraint("Equal", 36, 38),
    Sketcher.Constraint("Equal", 35, 39),
    Sketcher.Constraint("Equal", 38, 40),
    Sketcher.Constraint("Equal", 37, 41),
    Sketcher.Constraint("Equal", 40, 42),
    Sketcher.Constraint("Equal", 39, 43),
    Sketcher.Constraint("Equal", 42, 44),
    Sketcher.Constraint("Equal", 41, 45),
    Sketcher.Constraint("Equal", 44, 46),
    Sketcher.Constraint("Equal", 39, 47),
    Sketcher.Constraint("Equal", 46, 48),
    Sketcher.Constraint("Equal", 45, 49),
    Sketcher.Constraint("Equal", 48, 50),
    Sketcher.Constraint("Equal", 43, 51),
    Sketcher.Constraint("Equal", 50, 52),
    Sketcher.Constraint("Equal", 49, 53),
    Sketcher.Constraint("Equal", 52, 54),
    Sketcher.Constraint("Equal", 7, 55),
    Sketcher.Constraint("Equal", 54, 56),
    Sketcher.Constraint("Equal", 53, 57),
    Sketcher.Constraint("Equal", 56, 58),
    Sketcher.Constraint("Equal", 51, 59),
    Sketcher.Constraint("Equal", 58, 60),
    Sketcher.Constraint("Equal", 57, 61),
    Sketcher.Constraint("Equal", 60, 62),
    Sketcher.Constraint("Equal", 59, 63),
    Sketcher.Constraint("Equal", 62, 64),
    Sketcher.Constraint("Equal", 61, 65),
    Sketcher.Constraint("Equal", 64, 66),
    Sketcher.Constraint("Equal", 55, 67),
    Sketcher.Constraint("Equal", 66, 68),
    Sketcher.Constraint("Equal", 65, 69),
    Sketcher.Constraint("Equal", 68, 70),
    Sketcher.Constraint("Equal", 67, 71),
    Sketcher.Constraint("Equal", 70, 72),
    Sketcher.Constraint("Equal", 69, 73),
    Sketcher.Constraint("Equal", 72, 74),
    Sketcher.Constraint("Equal", 71, 75),
    Sketcher.Constraint("Equal", 74, 76),
    Sketcher.Constraint("Equal", 73, 77),
    Sketcher.Constraint("Equal", 76, 78),
    Sketcher.Constraint("Equal", 75, 79),
    Sketcher.Constraint("Horizontal", 0, 3, 2, 3),
    Sketcher.Constraint("Horizontal", 40, 3, 42, 3),
    Sketcher.Constraint("Horizontal", 38, 3, 44, 3),
    Sketcher.Constraint("Horizontal", 36, 3, 46, 3),
    Sketcher.Constraint("Horizontal", 34, 3, 48, 3),
    Sketcher.Constraint("Horizontal", 32, 3, 50, 3),
    Sketcher.Constraint("Horizontal", 30, 3, 52, 3),
    Sketcher.Constraint("Horizontal", 28, 3, 54, 3),
    Sketcher.Constraint("Horizontal", 26, 3, 56, 3),
    Sketcher.Constraint("Horizontal", 24, 3, 58, 3),
    Sketcher.Constraint("Horizontal", 22, 3, 60, 3),
    Sketcher.Constraint("Horizontal", 20, 3, 62, 3),
    Sketcher.Constraint("Horizontal", 18, 3, 64, 3),
    Sketcher.Constraint("Horizontal", 16, 3, 66, 3),
    Sketcher.Constraint("Horizontal", 14, 3, 68, 3),
    Sketcher.Constraint("Horizontal", 12, 3, 70, 3),
    Sketcher.Constraint("Horizontal", 10, 3, 72, 3),
    Sketcher.Constraint("Horizontal", 8, 3, 74, 3),
    Sketcher.Constraint("Horizontal", 6, 3, 76, 3),
    Sketcher.Constraint("Horizontal", 4, 3, 78, 3),
    Sketcher.Constraint("Horizontal", 0, 2, 1, 2),
    Sketcher.Constraint("Horizontal", 40, 2, 41, 2),
    Sketcher.Constraint("Horizontal", 38, 2, 43, 2),
    Sketcher.Constraint("Horizontal", 36, 2, 45, 2),
    Sketcher.Constraint("Horizontal", 34, 2, 47, 2),
    Sketcher.Constraint("Horizontal", 32, 2, 49, 2),
    Sketcher.Constraint("Horizontal", 30, 2, 51, 2),
    Sketcher.Constraint("Horizontal", 28, 2, 53, 2),
    Sketcher.Constraint("Horizontal", 26, 2, 55, 2),
    Sketcher.Constraint("Horizontal", 24, 2, 57, 2),
    Sketcher.Constraint("Horizontal", 22, 2, 59, 2),
    Sketcher.Constraint("Horizontal", 20, 2, 61, 2),
    Sketcher.Constraint("Horizontal", 18, 2, 63, 2),
    Sketcher.Constraint("Horizontal", 16, 2, 65, 2),
    Sketcher.Constraint("Horizontal", 14, 2, 67, 2),
    Sketcher.Constraint("Horizontal", 12, 2, 69, 2),
    Sketcher.Constraint("Horizontal", 10, 2, 71, 2),
    Sketcher.Constraint("Horizontal", 8, 2, 73, 2),
    Sketcher.Constraint("Horizontal", 6, 2, 75, 2),
    Sketcher.Constraint("Horizontal", 4, 2, 77, 2),
    Sketcher.Constraint("Vertical", 20, 3, 22, 3),
    Sketcher.Constraint("Vertical", 18, 3, 24, 3),
    Sketcher.Constraint("Vertical", 16, 3, 26, 3),
    Sketcher.Constraint("Vertical", 14, 3, 28, 3),
    Sketcher.Constraint("Vertical", 12, 3, 30, 3),
    Sketcher.Constraint("Vertical", 10, 3, 32, 3),
    Sketcher.Constraint("Vertical", 8, 3, 34, 3),
    Sketcher.Constraint("Vertical", 6, 3, 36, 3),
    Sketcher.Constraint("Vertical", 4, 3, 38, 3),
    Sketcher.Constraint("Vertical", 2, 3, 40, 3),
    Sketcher.Constraint("Vertical", 20, 2, 21, 2),
    Sketcher.Constraint("Vertical", 18, 2, 23, 2),
    Sketcher.Constraint("Vertical", 16, 2, 25, 2),
    Sketcher.Constraint("Vertical", 14, 2, 27, 2),
    Sketcher.Constraint("Vertical", 12, 2, 29, 2),
    Sketcher.Constraint("Vertical", 10, 2, 31, 2),
    Sketcher.Constraint("Vertical", 8, 2, 33, 2),
    Sketcher.Constraint("Vertical", 6, 2, 35, 2),
    Sketcher.Constraint("Vertical", 4, 2, 37, 2),
    Sketcher.Constraint("Vertical", 2, 2, 39, 2),
    Sketcher.Constraint("Diameter", 80, 26.0),
    Sketcher.Constraint("Radius", 0, 8.0),
    Sketcher.Constraint("Radius", 3, 22.0),
    Sketcher.Constraint("Radius", 1, 17.499),
    Sketcher.Constraint("DistanceY", -1, 1, 28, 2, 14.453002),
    Sketcher.Constraint("DistanceX", -1, 1, 54, 2, 13.489001),
    Sketcher.Constraint("DistanceX", 16, 3, -1, 1, 18.831502),
    Sketcher.Constraint("DistanceY", -1, 1, 18, 3, 20.540198),
    Sketcher.Constraint("DistanceX", 6, 2, -1, 1, 15.3734),
    Sketcher.Constraint("DistanceY", -1, 1, 14, 2, 34.3855),
    Sketcher.Constraint("DistanceX", -1, 1, 52, 2, 7.690099),
    Sketcher.Constraint("DistanceX", -1, 1, 57, 2, 11.056099),
    Sketcher.Constraint("DistanceX", -1, 1, 59, 2, 15.9416),
    Sketcher.Constraint("DistanceY", -1, 1, 0, 3, 40.46051),
    Sketcher.Constraint("DistanceY", -1, 1, 1, 3, 23.924479),
    Sketcher.Constraint("DistanceX", 2, 3, -1, 1, 14.79606),
    Sketcher.Constraint("DistanceY", -1, 1, 4, 3, 42.411111),
    Sketcher.Constraint("DistanceY", -1, 1, 8, 3, 42.552111),
    Sketcher.Constraint("DistanceX", 12, 3, -1, 1, 13.992962),
    Sketcher.Constraint("DistanceY", -1, 1, 16, 3, 37.52859),
    Sketcher.Constraint("DistanceY", -1, 1, 32, 3, 15.796251),
    Sketcher.Constraint("DistanceY", -1, 1, 36, 3, 10.957711),
    Sketcher.Constraint("DistanceY", -1, 1, 3, 2, 45.563608),
    Sketcher.Constraint("DistanceX", 8, 2, -1, 1, 15.336212),
    Sketcher.Constraint("DistanceX", 9, 2, -1, 1, 16.931871),
    Sketcher.Constraint("DistanceY", -1, 1, 20, 2, 24.910651),
])
pad1 = body.newObject("PartDesign::Pad", "Pad")
pad1.Profile = sketch1
pad1.Length = 20
pad1.Reversed = True

sketch2 = body.newObject("Sketcher::SketchObject", "Sketch001")
sketch2.AttachmentSupport = (doc.getObject("YZ_Plane"), [""])
sketch2.MapMode = "FlatFace"
sketch2.AttachmentOffset = App.Placement(V(0, 0, 30.485242), App.Rotation())
sketch2.addGeometry([
    Part.LineSegment(V(22, 49, 0), V(8, 49, 0)),
    Part.LineSegment(V(8, 49, 0), V(8, -1, 0)),
    Part.LineSegment(V(8, -1, 0), V(22, -1, 0)),
    Part.LineSegment(V(22, -1, 0), V(22, 49, 0)),
], False)
sketch2.addConstraint([
    Sketcher.Constraint("Coincident", 0, 2, 1, 1),
    Sketcher.Constraint("Coincident", 1, 2, 2, 1),
    Sketcher.Constraint("Coincident", 2, 2, 3, 1),
    Sketcher.Constraint("Coincident", 3, 2, 0, 1),
    Sketcher.Constraint("Horizontal", 0),
    Sketcher.Constraint("Vertical", 1),
    Sketcher.Constraint("Horizontal", 2),
    Sketcher.Constraint("Vertical", 3),
    Sketcher.Constraint("DistanceX", 0, 2, 0, 1, 14.0),
    Sketcher.Constraint("DistanceY", 1, 2, 1, 1, 50.0),
    Sketcher.Constraint("DistanceX", -1, 1, 0, 2, 7.653189),
    Sketcher.Constraint("DistanceY", -1, 1, 0, 2, 49.233466),
])
pad2 = body.newObject("PartDesign::Pad", "Pad001")
pad2.Profile = sketch2
pad2.Type = "TwoLengths"
pad2.Length = 14
pad2.Length2 = 34

doc.recompute()
